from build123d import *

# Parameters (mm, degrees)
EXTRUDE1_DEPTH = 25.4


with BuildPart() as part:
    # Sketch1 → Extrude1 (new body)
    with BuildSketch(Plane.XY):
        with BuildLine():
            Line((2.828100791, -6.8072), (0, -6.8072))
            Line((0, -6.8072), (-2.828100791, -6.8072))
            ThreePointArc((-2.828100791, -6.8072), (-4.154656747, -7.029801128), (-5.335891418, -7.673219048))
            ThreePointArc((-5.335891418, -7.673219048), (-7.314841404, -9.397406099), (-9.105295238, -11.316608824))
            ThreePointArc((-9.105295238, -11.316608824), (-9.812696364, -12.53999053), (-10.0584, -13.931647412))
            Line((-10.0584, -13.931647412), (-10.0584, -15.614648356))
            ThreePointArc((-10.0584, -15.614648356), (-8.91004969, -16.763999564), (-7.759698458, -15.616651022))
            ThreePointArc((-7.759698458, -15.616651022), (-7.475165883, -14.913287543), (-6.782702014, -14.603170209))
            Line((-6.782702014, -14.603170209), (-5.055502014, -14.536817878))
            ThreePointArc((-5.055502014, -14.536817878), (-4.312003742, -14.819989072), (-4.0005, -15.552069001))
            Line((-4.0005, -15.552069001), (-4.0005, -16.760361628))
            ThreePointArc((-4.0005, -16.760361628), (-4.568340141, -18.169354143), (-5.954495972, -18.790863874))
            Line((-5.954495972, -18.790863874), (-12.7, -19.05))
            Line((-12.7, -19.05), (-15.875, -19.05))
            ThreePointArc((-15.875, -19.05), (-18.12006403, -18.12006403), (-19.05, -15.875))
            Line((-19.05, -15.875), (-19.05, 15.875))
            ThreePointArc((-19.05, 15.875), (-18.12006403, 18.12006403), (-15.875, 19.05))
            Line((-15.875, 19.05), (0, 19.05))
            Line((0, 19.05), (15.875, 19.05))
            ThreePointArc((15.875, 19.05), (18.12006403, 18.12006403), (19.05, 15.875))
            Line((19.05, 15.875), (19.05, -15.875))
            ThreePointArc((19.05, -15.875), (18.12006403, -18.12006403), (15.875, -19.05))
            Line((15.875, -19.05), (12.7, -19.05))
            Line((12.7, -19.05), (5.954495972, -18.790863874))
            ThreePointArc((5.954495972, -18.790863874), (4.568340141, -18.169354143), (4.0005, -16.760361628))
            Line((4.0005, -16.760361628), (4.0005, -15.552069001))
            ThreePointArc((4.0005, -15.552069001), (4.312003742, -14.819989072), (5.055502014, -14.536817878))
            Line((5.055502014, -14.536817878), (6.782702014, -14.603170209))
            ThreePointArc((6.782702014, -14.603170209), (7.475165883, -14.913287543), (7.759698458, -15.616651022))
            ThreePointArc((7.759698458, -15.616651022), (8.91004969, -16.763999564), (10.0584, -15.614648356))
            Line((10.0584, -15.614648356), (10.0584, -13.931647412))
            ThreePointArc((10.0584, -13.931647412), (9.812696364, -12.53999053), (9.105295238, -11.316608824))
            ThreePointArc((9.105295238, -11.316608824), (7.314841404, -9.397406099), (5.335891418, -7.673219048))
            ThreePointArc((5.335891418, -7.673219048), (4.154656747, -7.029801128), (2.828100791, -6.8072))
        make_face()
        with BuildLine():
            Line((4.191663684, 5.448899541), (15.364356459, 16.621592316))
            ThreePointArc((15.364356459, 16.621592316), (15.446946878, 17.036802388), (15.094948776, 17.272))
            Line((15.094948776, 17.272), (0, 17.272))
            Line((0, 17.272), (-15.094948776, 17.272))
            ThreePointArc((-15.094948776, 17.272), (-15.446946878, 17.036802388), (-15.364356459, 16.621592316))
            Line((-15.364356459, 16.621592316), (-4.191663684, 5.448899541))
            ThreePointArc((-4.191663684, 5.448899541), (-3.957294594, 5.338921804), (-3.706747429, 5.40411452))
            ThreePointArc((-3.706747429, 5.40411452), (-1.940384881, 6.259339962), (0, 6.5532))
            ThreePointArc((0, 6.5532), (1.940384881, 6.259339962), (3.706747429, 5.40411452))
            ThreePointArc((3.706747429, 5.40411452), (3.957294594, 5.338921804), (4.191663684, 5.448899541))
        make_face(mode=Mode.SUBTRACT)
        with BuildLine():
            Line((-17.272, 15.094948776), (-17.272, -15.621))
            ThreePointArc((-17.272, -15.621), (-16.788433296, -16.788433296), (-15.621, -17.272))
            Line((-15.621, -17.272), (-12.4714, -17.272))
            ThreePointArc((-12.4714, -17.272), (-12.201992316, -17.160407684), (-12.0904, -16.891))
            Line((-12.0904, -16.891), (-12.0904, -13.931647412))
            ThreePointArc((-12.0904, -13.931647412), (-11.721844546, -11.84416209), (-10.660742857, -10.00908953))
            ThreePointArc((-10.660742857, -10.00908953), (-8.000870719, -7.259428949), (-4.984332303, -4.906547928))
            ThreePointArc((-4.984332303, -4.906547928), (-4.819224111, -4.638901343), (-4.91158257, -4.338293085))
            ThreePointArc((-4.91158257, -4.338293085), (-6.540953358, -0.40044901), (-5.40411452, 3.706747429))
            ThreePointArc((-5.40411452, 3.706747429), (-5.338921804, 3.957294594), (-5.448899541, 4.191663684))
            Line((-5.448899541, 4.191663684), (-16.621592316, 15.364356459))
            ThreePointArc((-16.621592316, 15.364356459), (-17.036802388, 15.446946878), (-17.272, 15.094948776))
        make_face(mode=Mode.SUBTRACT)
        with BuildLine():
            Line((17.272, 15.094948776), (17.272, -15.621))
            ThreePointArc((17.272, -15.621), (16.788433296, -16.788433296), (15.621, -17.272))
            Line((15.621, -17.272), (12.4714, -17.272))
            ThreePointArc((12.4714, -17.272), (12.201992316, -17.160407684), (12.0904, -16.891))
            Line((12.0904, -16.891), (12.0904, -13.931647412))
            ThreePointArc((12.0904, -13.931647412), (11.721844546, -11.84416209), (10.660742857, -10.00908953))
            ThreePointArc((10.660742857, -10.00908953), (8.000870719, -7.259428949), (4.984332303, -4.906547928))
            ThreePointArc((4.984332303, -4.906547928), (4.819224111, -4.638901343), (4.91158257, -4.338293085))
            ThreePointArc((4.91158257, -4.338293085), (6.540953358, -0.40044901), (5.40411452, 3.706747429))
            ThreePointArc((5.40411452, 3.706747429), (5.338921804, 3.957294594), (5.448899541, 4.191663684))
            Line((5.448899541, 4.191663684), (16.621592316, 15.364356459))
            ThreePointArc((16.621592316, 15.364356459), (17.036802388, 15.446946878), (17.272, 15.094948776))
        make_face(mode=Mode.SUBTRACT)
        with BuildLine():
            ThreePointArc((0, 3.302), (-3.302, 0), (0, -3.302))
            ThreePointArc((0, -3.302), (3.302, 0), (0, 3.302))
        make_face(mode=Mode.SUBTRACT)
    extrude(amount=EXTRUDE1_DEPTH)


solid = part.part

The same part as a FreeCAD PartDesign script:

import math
import FreeCAD as App
import Part
import Sketcher
from FreeCAD import Vector
Q = App.Units.Quantity

doc = App.newDocument("Part")
body = doc.addObject("PartDesign::Body", "Body")

# Sketch on XY plane
sketch1 = body.newObject("Sketcher::SketchObject", "Sketch")
sketch1.AttachmentSupport = (doc.getObject("XY_Plane"), [""])
sketch1.MapMode = "FlatFace"
sketch1.addGeometry(Part.LineSegment(Vector(-2.828101, -6.8072, 0), Vector(2.828101, -6.8072, 0)), False)
sketch1.addGeometry(Part.ArcOfCircle(Part.Circle(Vector(2.828101, -10.8712, 0), Vector(0, 0, 1), 4.064), math.radians(51.89719), math.radians(90)), False)
sketch1.addGeometry(Part.ArcOfCircle(Part.Circle(Vector(-10.3378, -27.6606, 0), Vector(0, 0, 1), 25.4), math.radians(40.050625), math.radians(51.89719)), False)
sketch1.addGeometry(Part.ArcOfCircle(Part.Circle(Vector(5.9944, -13.931647, 0), Vector(0, 0, 1), 4.064), math.radians(0), math.radians(40.050625)), False)
sketch1.addGeometry(Part.LineSegment(Vector(10.0584, -13.931647, 0), Vector(10.0584, -15.614648, 0)), False)
sketch1.addGeometry(Part.ArcOfCircle(Part.Circle(Vector(8.909048, -15.614648, 0), Vector(0, 0, 1), 1.149352), math.radians(-179.900166), math.radians(0)), False)
sketch1.addGeometry(Part.ArcOfCircle(Part.Circle(Vector(6.7437, -15.618421, 0), Vector(0, 0, 1), 1.016), math.radians(0.099834), math.radians(87.8)), False)
sketch1.addGeometry(Part.LineSegment(Vector(6.782702, -14.60317, 0), Vector(5.055502, -14.536818, 0)), False)
sketch1.addGeometry(Part.ArcOfCircle(Part.Circle(Vector(5.0165, -15.552069, 0), Vector(0, 0, 1), 1.016), math.radians(87.8), math.radians(180)), False)
sketch1.addGeometry(Part.LineSegment(Vector(4.0005, -15.552069, 0), Vector(4.0005, -16.760362, 0)), False)
sketch1.addGeometry(Part.ArcOfCircle(Part.Circle(Vector(6.0325, -16.760362, 0), Vector(0, 0, 1), 2.032), math.radians(180), math.radians(267.8)), False)
sketch1.addGeometry(Part.LineSegment(Vector(5.954496, -18.790864, 0), Vector(12.7, -19.05, 0)), False)
sketch1.addGeometry(Part.LineSegment(Vector(12.7, -19.05, 0), Vector(15.875, -19.05, 0)), False)
sketch1.addGeometry(Part.ArcOfCircle(Part.Circle(Vector(15.875, -15.875, 0), Vector(0, 0, 1), 3.175), math.radians(-90), math.radians(0)), False)
sketch1.addGeometry(Part.LineSegment(Vector(19.05, -15.875, 0), Vector(19.05, 15.875, 0)), False)
sketch1.addGeometry(Part.ArcOfCircle(Part.Circle(Vector(15.875, 15.875, 0), Vector(0, 0, 1), 3.175), math.radians(0), math.radians(90)), False)
sketch1.addGeometry(Part.LineSegment(Vector(15.875, 19.05, 0), Vector(-15.875, 19.05, 0)), False)
sketch1.addGeometry(Part.ArcOfCircle(Part.Circle(Vector(-15.875, 15.875, 0), Vector(0, 0, 1), 3.175), math.radians(90), math.radians(180)), False)
sketch1.addGeometry(Part.LineSegment(Vector(-19.05, 15.875, 0), Vector(-19.05, -15.875, 0)), False)
sketch1.addGeometry(Part.ArcOfCircle(Part.Circle(Vector(-15.875, -15.875, 0), Vector(0, 0, 1), 3.175), math.radians(-180), math.radians(-90)), False)
sketch1.addGeometry(Part.LineSegment(Vector(-15.875, -19.05, 0), Vector(-12.7, -19.05, 0)), False)
sketch1.addGeometry(Part.LineSegment(Vector(-12.7, -19.05, 0), Vector(-5.954496, -18.790864, 0)), False)
sketch1.addGeometry(Part.ArcOfCircle(Part.Circle(Vector(-6.0325, -16.760362, 0), Vector(0, 0, 1), 2.032), math.radians(-87.8), math.radians(0)), False)
sketch1.addGeometry(Part.LineSegment(Vector(-4.0005, -16.760362, 0), Vector(-4.0005, -15.552069, 0)), False)
sketch1.addGeometry(Part.ArcOfCircle(Part.Circle(Vector(-5.0165, -15.552069, 0), Vector(0, 0, 1), 1.016), math.radians(0), math.radians(92.2)), False)
sketch1.addGeometry(Part.LineSegment(Vector(-5.055502, -14.536818, 0), Vector(-6.782702, -14.60317, 0)), False)
sketch1.addGeometry(Part.ArcOfCircle(Part.Circle(Vector(-6.7437, -15.618421, 0), Vector(0, 0, 1), 1.016), math.radians(92.2), math.radians(179.900166)), False)
sketch1.addGeometry(Part.ArcOfCircle(Part.Circle(Vector(-8.909048, -15.614648, 0), Vector(0, 0, 1), 1.149352), math.radians(180), math.radians(359.900166)), False)
sketch1.addGeometry(Part.LineSegment(Vector(-10.0584, -15.614648, 0), Vector(-10.0584, -13.931647, 0)), False)
sketch1.addGeometry(Part.ArcOfCircle(Part.Circle(Vector(-5.9944, -13.931647, 0), Vector(0, 0, 1), 4.064), math.radians(139.949375), math.radians(180)), False)
sketch1.addGeometry(Part.ArcOfCircle(Part.Circle(Vector(10.3378, -27.6606, 0), Vector(0, 0, 1), 25.4), math.radians(128.10281), math.radians(139.949375)), False)
sketch1.addGeometry(Part.ArcOfCircle(Part.Circle(Vector(-2.828101, -10.8712, 0), Vector(0, 0, 1), 4.064), math.radians(90), math.radians(128.10281)), False)
sketch1.addGeometry(Part.LineSegment(Vector(17.272, 15.094949, 0), Vector(17.272, -15.621, 0)), False)
sketch1.addGeometry(Part.ArcOfCircle(Part.Circle(Vector(15.621, -15.621, 0), Vector(0, 0, 1), 1.651), math.radians(-90), math.radians(0)), False)
sketch1.addGeometry(Part.LineSegment(Vector(15.621, -17.272, 0), Vector(12.4714, -17.272, 0)), False)
sketch1.addGeometry(Part.ArcOfCircle(Part.Circle(Vector(12.4714, -16.891, 0), Vector(0, 0, 1), 0.381), math.radians(180), math.radians(270)), False)
sketch1.addGeometry(Part.LineSegment(Vector(12.0904, -16.891, 0), Vector(12.0904, -13.931647, 0)), False)
sketch1.addGeometry(Part.ArcOfCircle(Part.Circle(Vector(5.9944, -13.931647, 0), Vector(0, 0, 1), 6.096), math.radians(0), math.radians(40.050625)), False)
sketch1.addGeometry(Part.ArcOfCircle(Part.Circle(Vector(-10.3378, -27.6606, 0), Vector(0, 0, 1), 27.432), math.radians(40.050625), math.radians(56.044449)), False)
sketch1.addGeometry(Part.ArcOfCircle(Part.Circle(Vector(5.19714, -4.590519, 0), Vector(0, 0, 1), 0.381), math.radians(138.546546), math.radians(236.044448)), False)
sketch1.addGeometry(Part.ArcOfCircle(Part.Circle(Vector(0, 0, 0), Vector(0, 0, 1), 6.5532), math.radians(-41.453454), math.radians(34.446697)), False)
sketch1.addGeometry(Part.ArcOfCircle(Part.Circle(Vector(5.718307, 3.922256, 0), Vector(0, 0, 1), 0.381), math.radians(135), math.radians(214.446697)), False)
sketch1.addGeometry(Part.LineSegment(Vector(5.4489, 4.191664, 0), Vector(16.621592, 15.364356, 0)), False)
sketch1.addGeometry(Part.ArcOfCircle(Part.Circle(Vector(16.891, 15.094949, 0), Vector(0, 0, 1), 0.381), math.radians(0), math.radians(135)), False)
sketch1.addGeometry(Part.ArcOfCircle(Part.Circle(Vector(-16.891, 15.094949, 0), Vector(0, 0, 1), 0.381), math.radians(45), math.radians(180)), False)
sketch1.addGeometry(Part.LineSegment(Vector(-16.621592, 15.364356, 0), Vector(-5.4489, 4.191664, 0)), False)
sketch1.addGeometry(Part.ArcOfCircle(Part.Circle(Vector(-5.718307, 3.922256, 0), Vector(0, 0, 1), 0.381), math.radians(-34.446697), math.radians(45)), False)
sketch1.addGeometry(Part.ArcOfCircle(Part.Circle(Vector(0, 0, 0), Vector(0, 0, 1), 6.5532), math.radians(145.553303), math.radians(221.453454)), False)
sketch1.addGeometry(Part.ArcOfCircle(Part.Circle(Vector(-5.19714, -4.590519, 0), Vector(0, 0, 1), 0.381), math.radians(-56.044448), math.radians(41.453454)), False)
sketch1.addGeometry(Part.ArcOfCircle(Part.Circle(Vector(10.3378, -27.6606, 0), Vector(0, 0, 1), 27.432), math.radians(123.955551), math.radians(139.949375)), False)
sketch1.addGeometry(Part.ArcOfCircle(Part.Circle(Vector(-5.9944, -13.931647, 0), Vector(0, 0, 1), 6.096), math.radians(139.949375), math.radians(180)), False)
sketch1.addGeometry(Part.LineSegment(Vector(-12.0904, -13.931647, 0), Vector(-12.0904, -16.891, 0)), False)
sketch1.addGeometry(Part.ArcOfCircle(Part.Circle(Vector(-12.4714, -16.891, 0), Vector(0, 0, 1), 0.381), math.radians(-90), math.radians(0)), False)
sketch1.addGeometry(Part.LineSegment(Vector(-12.4714, -17.272, 0), Vector(-15.621, -17.272, 0)), False)
sketch1.addGeometry(Part.ArcOfCircle(Part.Circle(Vector(-15.621, -15.621, 0), Vector(0, 0, 1), 1.651), math.radians(180), math.radians(270)), False)
sketch1.addGeometry(Part.LineSegment(Vector(-17.272, -15.621, 0), Vector(-17.272, 15.094949, 0)), False)
sketch1.addGeometry(Part.Circle(Vector(0, 0, 0), Vector(0, 0, 1), 3.302), False)
sketch1.addGeometry(Part.ArcOfCircle(Part.Circle(Vector(3.922256, 5.718307, 0), Vector(0, 0, 1), 0.381), math.radians(-124.446697), math.radians(-45)), False)
sketch1.addGeometry(Part.ArcOfCircle(Part.Circle(Vector(0, 0, 0), Vector(0, 0, 1), 6.5532), math.radians(55.553303), math.radians(90)), False)
sketch1.addGeometry(Part.ArcOfCircle(Part.Circle(Vector(0, 0, 0), Vector(0, 0, 1), 6.5532), math.radians(90), math.radians(124.446697)), False)
sketch1.addGeometry(Part.ArcOfCircle(Part.Circle(Vector(-3.922256, 5.718307, 0), Vector(0, 0, 1), 0.381), math.radians(-135), math.radians(-55.553303)), False)
sketch1.addGeometry(Part.LineSegment(Vector(-4.191664, 5.4489, 0), Vector(-15.364356, 16.621592, 0)), False)
sketch1.addGeometry(Part.ArcOfCircle(Part.Circle(Vector(-15.094949, 16.891, 0), Vector(0, 0, 1), 0.381), math.radians(90), math.radians(225)), False)
sketch1.addGeometry(Part.LineSegment(Vector(-15.094949, 17.272, 0), Vector(15.094949, 17.272, 0)), False)
sketch1.addGeometry(Part.ArcOfCircle(Part.Circle(Vector(15.094949, 16.891, 0), Vector(0, 0, 1), 0.381), math.radians(-45), math.radians(90)), False)
sketch1.addGeometry(Part.LineSegment(Vector(15.364356, 16.621592, 0), Vector(4.191664, 5.4489, 0)), False)
sketch1.addConstraint(Sketcher.Constraint("Tangent", 0, 2, 1, 2))
sketch1.addConstraint(Sketcher.Constraint("Tangent", 1, 1, 2, 2))
sketch1.addConstraint(Sketcher.Constraint("Tangent", 2, 1, 3, 2))
sketch1.addConstraint(Sketcher.Constraint("Tangent", 3, 1, 4, 1))
sketch1.addConstraint(Sketcher.Constraint("Tangent", 4, 2, 5, 2))
sketch1.addConstraint(Sketcher.Constraint("Tangent", 5, 1, 6, 1))
sketch1.addConstraint(Sketcher.Constraint("Tangent", 6, 2, 7, 1))
sketch1.addConstraint(Sketcher.Constraint("Tangent", 7, 2, 8, 1))
sketch1.addConstraint(Sketcher.Constraint("Tangent", 8, 2, 9, 1))
sketch1.addConstraint(Sketcher.Constraint("Tangent", 9, 2, 10, 1))
sketch1.addConstraint(Sketcher.Constraint("Tangent", 10, 2, 11, 1))
sketch1.addConstraint(Sketcher.Constraint("Coincident", 11, 2, 12, 1))
sketch1.addConstraint(Sketcher.Constraint("Tangent", 12, 2, 13, 1))
sketch1.addConstraint(Sketcher.Constraint("Tangent", 13, 2, 14, 1))
sketch1.addConstraint(Sketcher.Constraint("Tangent", 14, 2, 15, 1))
sketch1.addConstraint(Sketcher.Constraint("Tangent", 15, 2, 16, 1))
sketch1.addConstraint(Sketcher.Constraint("Tangent", 16, 2, 17, 1))
sketch1.addConstraint(Sketcher.Constraint("Tangent", 17, 2, 18, 1))
sketch1.addConstraint(Sketcher.Constraint("Tangent", 18, 2, 19, 1))
sketch1.addConstraint(Sketcher.Constraint("Tangent", 19, 2, 20, 1))
sketch1.addConstraint(Sketcher.Constraint("Coincident", 20, 2, 21, 1))
sketch1.addConstraint(Sketcher.Constraint("Tangent", 21, 2, 22, 1))
sketch1.addConstraint(Sketcher.Constraint("Tangent", 22, 2, 23, 1))
sketch1.addConstraint(Sketcher.Constraint("Tangent", 23, 2, 24, 1))
sketch1.addConstraint(Sketcher.Constraint("Tangent", 24, 2, 25, 1))
sketch1.addConstraint(Sketcher.Constraint("Tangent", 25, 2, 26, 1))
sketch1.addConstraint(Sketcher.Constraint("Tangent", 26, 2, 27, 2))
sketch1.addConstraint(Sketcher.Constraint("Tangent", 27, 1, 28, 1))
sketch1.addConstraint(Sketcher.Constraint("Tangent", 28, 2, 29, 2))
sketch1.addConstraint(Sketcher.Constraint("Tangent", 29, 1, 30, 2))
sketch1.addConstraint(Sketcher.Constraint("Tangent", 30, 1, 31, 2))
sketch1.addConstraint(Sketcher.Constraint("Tangent", 31, 1, 0, 1))
sketch1.addConstraint(Sketcher.Constraint("Tangent", 32, 2, 33, 2))
sketch1.addConstraint(Sketcher.Constraint("Tangent", 33, 1, 34, 1))
sketch1.addConstraint(Sketcher.Constraint("Tangent", 34, 2, 35, 2))
sketch1.addConstraint(Sketcher.Constraint("Tangent", 35, 1, 36, 1))
sketch1.addConstraint(Sketcher.Constraint("Tangent", 36, 2, 37, 1))
sketch1.addConstraint(Sketcher.Constraint("Tangent", 37, 2, 38, 1))
sketch1.addConstraint(Sketcher.Constraint("Tangent", 38, 2, 39, 2))
sketch1.addConstraint(Sketcher.Constraint("Tangent", 39, 1, 40, 1))
sketch1.addConstraint(Sketcher.Constraint("Tangent", 40, 2, 41, 2))
sketch1.addConstraint(Sketcher.Constraint("Tangent", 41, 1, 42, 1))
sketch1.addConstraint(Sketcher.Constraint("Tangent", 42, 2, 43, 2))
sketch1.addConstraint(Sketcher.Constraint("Tangent", 43, 1, 32, 1))
sketch1.addConstraint(Sketcher.Constraint("Tangent", 44, 1, 45, 1))
sketch1.addConstraint(Sketcher.Constraint("Tangent", 45, 2, 46, 2))
sketch1.addConstraint(Sketcher.Constraint("Tangent", 46, 1, 47, 1))
sketch1.addConstraint(Sketcher.Constraint("Tangent", 47, 2, 48, 2))
sketch1.addConstraint(Sketcher.Constraint("Tangent", 48, 1, 49, 1))
sketch1.addConstraint(Sketcher.Constraint("Tangent", 49, 2, 50, 1))
sketch1.addConstraint(Sketcher.Constraint("Tangent", 50, 2, 51, 1))
sketch1.addConstraint(Sketcher.Constraint("Tangent", 51, 2, 52, 2))
sketch1.addConstraint(Sketcher.Constraint("Tangent", 52, 1, 53, 1))
sketch1.addConstraint(Sketcher.Constraint("Tangent", 53, 2, 54, 2))
sketch1.addConstraint(Sketcher.Constraint("Tangent", 54, 1, 55, 1))
sketch1.addConstraint(Sketcher.Constraint("Tangent", 55, 2, 44, 2))
sketch1.addConstraint(Sketcher.Constraint("Tangent", 57, 1, 58, 1))
sketch1.addConstraint(Sketcher.Constraint("Tangent", 58, 2, 59, 1))
sketch1.addConstraint(Sketcher.Constraint("Tangent", 59, 2, 60, 2))
sketch1.addConstraint(Sketcher.Constraint("Tangent", 60, 1, 61, 1))
sketch1.addConstraint(Sketcher.Constraint("Tangent", 61, 2, 62, 2))
sketch1.addConstraint(Sketcher.Constraint("Tangent", 62, 1, 63, 1))
sketch1.addConstraint(Sketcher.Constraint("Tangent", 63, 2, 64, 2))
sketch1.addConstraint(Sketcher.Constraint("Tangent", 64, 1, 65, 1))
sketch1.addConstraint(Sketcher.Constraint("Tangent", 65, 2, 57, 2))
sketch1.addConstraint(Sketcher.Constraint("Horizontal", 0))
sketch1.addConstraint(Sketcher.Constraint("Vertical", 4))
sketch1.addConstraint(Sketcher.Constraint("Vertical", 9))
sketch1.addConstraint(Sketcher.Constraint("Horizontal", 12))
sketch1.addConstraint(Sketcher.Constraint("Vertical", 14))
sketch1.addConstraint(Sketcher.Constraint("Horizontal", 16))
sketch1.addConstraint(Sketcher.Constraint("Vertical", 18))
sketch1.addConstraint(Sketcher.Constraint("Horizontal", 20))
sketch1.addConstraint(Sketcher.Constraint("Vertical", 23))
sketch1.addConstraint(Sketcher.Constraint("Vertical", 28))
sketch1.addConstraint(Sketcher.Constraint("Vertical", 32))
sketch1.addConstraint(Sketcher.Constraint("Horizontal", 34))
sketch1.addConstraint(Sketcher.Constraint("Vertical", 36))
sketch1.addConstraint(Sketcher.Constraint("Vertical", 51))
sketch1.addConstraint(Sketcher.Constraint("Horizontal", 53))
sketch1.addConstraint(Sketcher.Constraint("Vertical", 55))
sketch1.addConstraint(Sketcher.Constraint("Horizontal", 63))
sketch1.addConstraint(Sketcher.Constraint("Coincident", 40, 3, -1, 1))
sketch1.addConstraint(Sketcher.Constraint("Coincident", 47, 3, -1, 1))
sketch1.addConstraint(Sketcher.Constraint("Coincident", 56, 3, -1, 1))
sketch1.addConstraint(Sketcher.Constraint("Coincident", 58, 3, -1, 1))
sketch1.addConstraint(Sketcher.Constraint("Coincident", 37, 3, 3, 3))
sketch1.addConstraint(Sketcher.Constraint("Coincident", 38, 3, 2, 3))
sketch1.addConstraint(Sketcher.Constraint("Coincident", 49, 3, 30, 3))
sketch1.addConstraint(Sketcher.Constraint("Coincident", 50, 3, 29, 3))
sketch1.addConstraint(Sketcher.Constraint("Equal", 1, 3))
sketch1.addConstraint(Sketcher.Constraint("Equal", 6, 8))
sketch1.addConstraint(Sketcher.Constraint("Equal", 13, 15))
sketch1.addConstraint(Sketcher.Constraint("Equal", 15, 17))
sketch1.addConstraint(Sketcher.Constraint("Equal", 17, 19))
sketch1.addConstraint(Sketcher.Constraint("Equal", 10, 22))
sketch1.addConstraint(Sketcher.Constraint("Equal", 8, 24))
sketch1.addConstraint(Sketcher.Constraint("Equal", 24, 26))
sketch1.addConstraint(Sketcher.Constraint("Equal", 5, 27))
sketch1.addConstraint(Sketcher.Constraint("Equal", 3, 29))
sketch1.addConstraint(Sketcher.Constraint("Equal", 2, 30))
sketch1.addConstraint(Sketcher.Constraint("Equal", 29, 31))
sketch1.addConstraint(Sketcher.Constraint("Equal", 35, 39))
sketch1.addConstraint(Sketcher.Constraint("Equal", 39, 41))
sketch1.addConstraint(Sketcher.Constraint("Equal", 41, 43))
sketch1.addConstraint(Sketcher.Constraint("Equal", 43, 44))
sketch1.addConstraint(Sketcher.Constraint("Equal", 44, 46))
sketch1.addConstraint(Sketcher.Constraint("Equal", 40, 47))
sketch1.addConstraint(Sketcher.Constraint("Equal", 46, 48))
sketch1.addConstraint(Sketcher.Constraint("Equal", 38, 49))
sketch1.addConstraint(Sketcher.Constraint("Equal", 48, 52))
sketch1.addConstraint(Sketcher.Constraint("Equal", 33, 54))
sketch1.addConstraint(Sketcher.Constraint("Equal", 52, 57))
sketch1.addConstraint(Sketcher.Constraint("Equal", 47, 58))
sketch1.addConstraint(Sketcher.Constraint("Equal", 58, 59))
sketch1.addConstraint(Sketcher.Constraint("Equal", 57, 60))
sketch1.addConstraint(Sketcher.Constraint("Equal", 60, 62))
sketch1.addConstraint(Sketcher.Constraint("Equal", 62, 64))
sketch1.addConstraint(Sketcher.Constraint("Symmetric", 13, 3, 17, 3, -1, 1))
sketch1.addConstraint(Sketcher.Constraint("Symmetric", 10, 3, 22, 3, -2))
sketch1.addConstraint(Sketcher.Constraint("Symmetric", 6, 3, 26, 3, -2))
sketch1.addConstraint(Sketcher.Constraint("Symmetric", 2, 3, 30, 3, -2))
sketch1.addConstraint(Sketcher.Constraint("Symmetric", 43, 3, 44, 3, -2))
sketch1.addConstraint(Sketcher.Constraint("Symmetric", 11, 2, 20, 2, -2))
sketch1.addConstraint(Sketcher.Constraint("Symmetric", 61, 2, 64, 1, -2))
sketch1.addConstraint(Sketcher.Constraint("PointOnObject", 58, 2, -2))
sketch1.addConstraint(Sketcher.Constraint("Parallel", 7, 11))
sketch1.addConstraint(Sketcher.Constraint("Parallel", 21, 25))
sketch1.addConstraint(Sketcher.Constraint("Perpendicular", 42, 45))
sketch1.addConstraint(Sketcher.Constraint("Parallel", 45, 61))
sketch1.addConstraint(Sketcher.Constraint("Perpendicular", 61, 65))
sketch1.addConstraint(Sketcher.Constraint("Horizontal", 5, 3, 27, 3))
sketch1.addConstraint(Sketcher.Constraint("Horizontal", 35, 3, 52, 3))
sketch1.addConstraint(Sketcher.Constraint("Equal", 16, 14))
sketch1.addConstraint(Sketcher.Constraint("Equal", 45, 61))
sketch1.addConstraint(Sketcher.Constraint("Radius", 2, Q("1 in")))
sketch1.addConstraint(Sketcher.Constraint("Diameter", 56, Q("0.26 in")))
sketch1.addConstraint(Sketcher.Constraint("Radius", 1, Q("0.16 in")))
sketch1.addConstraint(Sketcher.Constraint("Radius", 6, Q("0.04 in")))
sketch1.addConstraint(Sketcher.Constraint("Radius", 10, Q("0.08 in")))
sketch1.addConstraint(Sketcher.Constraint("Radius", 37, Q("0.24 in")))
sketch1.addConstraint(Sketcher.Constraint("Radius", 13, Q("0.125 in")))
sketch1.addConstraint(Sketcher.Constraint("Radius", 33, Q("0.065 in")))
sketch1.addConstraint(Sketcher.Constraint("Radius", 35, Q("0.015 in")))
sketch1.addConstraint(Sketcher.Constraint("Radius", 40, Q("0.258 in")))
sketch1.addConstraint(Sketcher.Constraint("DistanceX", 16, 2, 16, 1, Q("1.25 in")))
sketch1.addConstraint(Sketcher.Constraint("DistanceX", -1, 1, 11, 2, Q("0.5 in")))
sketch1.addConstraint(Sketcher.Constraint("Angle", 7, Q("177.8 deg")))
sketch1.addConstraint(Sketcher.Constraint("DistanceX", 34, 2, 34, 1, Q("0.124 in")))
sketch1.addConstraint(Sketcher.Constraint("DistanceX", -1, 1, 32, 2, Q("0.68 in")))
sketch1.addConstraint(Sketcher.Constraint("DistanceY", 33, 1, -1, 1, Q("0.68 in")))
sketch1.addConstraint(Sketcher.Constraint("DistanceY", -1, 1, 62, 1, Q("0.68 in")))
sketch1.addConstraint(Sketcher.Constraint("DistanceY", 1, 3, -1, 1, Q("0.428 in")))
sketch1.addConstraint(Sketcher.Constraint("DistanceX", 2, 3, -1, 1, Q("0.407 in")))
sketch1.addConstraint(Sketcher.Constraint("DistanceY", 2, 3, -1, 1, Q("1.089 in")))
sketch1.addConstraint(Sketcher.Constraint("Radius", 5, Q("1.149352 mm")))
sketch1.addConstraint(Sketcher.Constraint("DistanceY", 4, 2, 4, 1, Q("1.683001 mm")))
sketch1.addConstraint(Sketcher.Constraint("DistanceX", -1, 1, 8, 3, Q("0.1975 in")))
sketch1.addConstraint(Sketcher.Constraint("DistanceY", 32, 2, 32, 1, Q("30.715949 mm")))
sketch1.addConstraint(Sketcher.Constraint("DistanceY", 9, 2, 9, 1, Q("1.208293 mm")))
pad1 = body.newObject("PartDesign::Pad", "Pad")
pad1.Profile = sketch1
pad1.Length = Q("1 in")

doc.recompute()
